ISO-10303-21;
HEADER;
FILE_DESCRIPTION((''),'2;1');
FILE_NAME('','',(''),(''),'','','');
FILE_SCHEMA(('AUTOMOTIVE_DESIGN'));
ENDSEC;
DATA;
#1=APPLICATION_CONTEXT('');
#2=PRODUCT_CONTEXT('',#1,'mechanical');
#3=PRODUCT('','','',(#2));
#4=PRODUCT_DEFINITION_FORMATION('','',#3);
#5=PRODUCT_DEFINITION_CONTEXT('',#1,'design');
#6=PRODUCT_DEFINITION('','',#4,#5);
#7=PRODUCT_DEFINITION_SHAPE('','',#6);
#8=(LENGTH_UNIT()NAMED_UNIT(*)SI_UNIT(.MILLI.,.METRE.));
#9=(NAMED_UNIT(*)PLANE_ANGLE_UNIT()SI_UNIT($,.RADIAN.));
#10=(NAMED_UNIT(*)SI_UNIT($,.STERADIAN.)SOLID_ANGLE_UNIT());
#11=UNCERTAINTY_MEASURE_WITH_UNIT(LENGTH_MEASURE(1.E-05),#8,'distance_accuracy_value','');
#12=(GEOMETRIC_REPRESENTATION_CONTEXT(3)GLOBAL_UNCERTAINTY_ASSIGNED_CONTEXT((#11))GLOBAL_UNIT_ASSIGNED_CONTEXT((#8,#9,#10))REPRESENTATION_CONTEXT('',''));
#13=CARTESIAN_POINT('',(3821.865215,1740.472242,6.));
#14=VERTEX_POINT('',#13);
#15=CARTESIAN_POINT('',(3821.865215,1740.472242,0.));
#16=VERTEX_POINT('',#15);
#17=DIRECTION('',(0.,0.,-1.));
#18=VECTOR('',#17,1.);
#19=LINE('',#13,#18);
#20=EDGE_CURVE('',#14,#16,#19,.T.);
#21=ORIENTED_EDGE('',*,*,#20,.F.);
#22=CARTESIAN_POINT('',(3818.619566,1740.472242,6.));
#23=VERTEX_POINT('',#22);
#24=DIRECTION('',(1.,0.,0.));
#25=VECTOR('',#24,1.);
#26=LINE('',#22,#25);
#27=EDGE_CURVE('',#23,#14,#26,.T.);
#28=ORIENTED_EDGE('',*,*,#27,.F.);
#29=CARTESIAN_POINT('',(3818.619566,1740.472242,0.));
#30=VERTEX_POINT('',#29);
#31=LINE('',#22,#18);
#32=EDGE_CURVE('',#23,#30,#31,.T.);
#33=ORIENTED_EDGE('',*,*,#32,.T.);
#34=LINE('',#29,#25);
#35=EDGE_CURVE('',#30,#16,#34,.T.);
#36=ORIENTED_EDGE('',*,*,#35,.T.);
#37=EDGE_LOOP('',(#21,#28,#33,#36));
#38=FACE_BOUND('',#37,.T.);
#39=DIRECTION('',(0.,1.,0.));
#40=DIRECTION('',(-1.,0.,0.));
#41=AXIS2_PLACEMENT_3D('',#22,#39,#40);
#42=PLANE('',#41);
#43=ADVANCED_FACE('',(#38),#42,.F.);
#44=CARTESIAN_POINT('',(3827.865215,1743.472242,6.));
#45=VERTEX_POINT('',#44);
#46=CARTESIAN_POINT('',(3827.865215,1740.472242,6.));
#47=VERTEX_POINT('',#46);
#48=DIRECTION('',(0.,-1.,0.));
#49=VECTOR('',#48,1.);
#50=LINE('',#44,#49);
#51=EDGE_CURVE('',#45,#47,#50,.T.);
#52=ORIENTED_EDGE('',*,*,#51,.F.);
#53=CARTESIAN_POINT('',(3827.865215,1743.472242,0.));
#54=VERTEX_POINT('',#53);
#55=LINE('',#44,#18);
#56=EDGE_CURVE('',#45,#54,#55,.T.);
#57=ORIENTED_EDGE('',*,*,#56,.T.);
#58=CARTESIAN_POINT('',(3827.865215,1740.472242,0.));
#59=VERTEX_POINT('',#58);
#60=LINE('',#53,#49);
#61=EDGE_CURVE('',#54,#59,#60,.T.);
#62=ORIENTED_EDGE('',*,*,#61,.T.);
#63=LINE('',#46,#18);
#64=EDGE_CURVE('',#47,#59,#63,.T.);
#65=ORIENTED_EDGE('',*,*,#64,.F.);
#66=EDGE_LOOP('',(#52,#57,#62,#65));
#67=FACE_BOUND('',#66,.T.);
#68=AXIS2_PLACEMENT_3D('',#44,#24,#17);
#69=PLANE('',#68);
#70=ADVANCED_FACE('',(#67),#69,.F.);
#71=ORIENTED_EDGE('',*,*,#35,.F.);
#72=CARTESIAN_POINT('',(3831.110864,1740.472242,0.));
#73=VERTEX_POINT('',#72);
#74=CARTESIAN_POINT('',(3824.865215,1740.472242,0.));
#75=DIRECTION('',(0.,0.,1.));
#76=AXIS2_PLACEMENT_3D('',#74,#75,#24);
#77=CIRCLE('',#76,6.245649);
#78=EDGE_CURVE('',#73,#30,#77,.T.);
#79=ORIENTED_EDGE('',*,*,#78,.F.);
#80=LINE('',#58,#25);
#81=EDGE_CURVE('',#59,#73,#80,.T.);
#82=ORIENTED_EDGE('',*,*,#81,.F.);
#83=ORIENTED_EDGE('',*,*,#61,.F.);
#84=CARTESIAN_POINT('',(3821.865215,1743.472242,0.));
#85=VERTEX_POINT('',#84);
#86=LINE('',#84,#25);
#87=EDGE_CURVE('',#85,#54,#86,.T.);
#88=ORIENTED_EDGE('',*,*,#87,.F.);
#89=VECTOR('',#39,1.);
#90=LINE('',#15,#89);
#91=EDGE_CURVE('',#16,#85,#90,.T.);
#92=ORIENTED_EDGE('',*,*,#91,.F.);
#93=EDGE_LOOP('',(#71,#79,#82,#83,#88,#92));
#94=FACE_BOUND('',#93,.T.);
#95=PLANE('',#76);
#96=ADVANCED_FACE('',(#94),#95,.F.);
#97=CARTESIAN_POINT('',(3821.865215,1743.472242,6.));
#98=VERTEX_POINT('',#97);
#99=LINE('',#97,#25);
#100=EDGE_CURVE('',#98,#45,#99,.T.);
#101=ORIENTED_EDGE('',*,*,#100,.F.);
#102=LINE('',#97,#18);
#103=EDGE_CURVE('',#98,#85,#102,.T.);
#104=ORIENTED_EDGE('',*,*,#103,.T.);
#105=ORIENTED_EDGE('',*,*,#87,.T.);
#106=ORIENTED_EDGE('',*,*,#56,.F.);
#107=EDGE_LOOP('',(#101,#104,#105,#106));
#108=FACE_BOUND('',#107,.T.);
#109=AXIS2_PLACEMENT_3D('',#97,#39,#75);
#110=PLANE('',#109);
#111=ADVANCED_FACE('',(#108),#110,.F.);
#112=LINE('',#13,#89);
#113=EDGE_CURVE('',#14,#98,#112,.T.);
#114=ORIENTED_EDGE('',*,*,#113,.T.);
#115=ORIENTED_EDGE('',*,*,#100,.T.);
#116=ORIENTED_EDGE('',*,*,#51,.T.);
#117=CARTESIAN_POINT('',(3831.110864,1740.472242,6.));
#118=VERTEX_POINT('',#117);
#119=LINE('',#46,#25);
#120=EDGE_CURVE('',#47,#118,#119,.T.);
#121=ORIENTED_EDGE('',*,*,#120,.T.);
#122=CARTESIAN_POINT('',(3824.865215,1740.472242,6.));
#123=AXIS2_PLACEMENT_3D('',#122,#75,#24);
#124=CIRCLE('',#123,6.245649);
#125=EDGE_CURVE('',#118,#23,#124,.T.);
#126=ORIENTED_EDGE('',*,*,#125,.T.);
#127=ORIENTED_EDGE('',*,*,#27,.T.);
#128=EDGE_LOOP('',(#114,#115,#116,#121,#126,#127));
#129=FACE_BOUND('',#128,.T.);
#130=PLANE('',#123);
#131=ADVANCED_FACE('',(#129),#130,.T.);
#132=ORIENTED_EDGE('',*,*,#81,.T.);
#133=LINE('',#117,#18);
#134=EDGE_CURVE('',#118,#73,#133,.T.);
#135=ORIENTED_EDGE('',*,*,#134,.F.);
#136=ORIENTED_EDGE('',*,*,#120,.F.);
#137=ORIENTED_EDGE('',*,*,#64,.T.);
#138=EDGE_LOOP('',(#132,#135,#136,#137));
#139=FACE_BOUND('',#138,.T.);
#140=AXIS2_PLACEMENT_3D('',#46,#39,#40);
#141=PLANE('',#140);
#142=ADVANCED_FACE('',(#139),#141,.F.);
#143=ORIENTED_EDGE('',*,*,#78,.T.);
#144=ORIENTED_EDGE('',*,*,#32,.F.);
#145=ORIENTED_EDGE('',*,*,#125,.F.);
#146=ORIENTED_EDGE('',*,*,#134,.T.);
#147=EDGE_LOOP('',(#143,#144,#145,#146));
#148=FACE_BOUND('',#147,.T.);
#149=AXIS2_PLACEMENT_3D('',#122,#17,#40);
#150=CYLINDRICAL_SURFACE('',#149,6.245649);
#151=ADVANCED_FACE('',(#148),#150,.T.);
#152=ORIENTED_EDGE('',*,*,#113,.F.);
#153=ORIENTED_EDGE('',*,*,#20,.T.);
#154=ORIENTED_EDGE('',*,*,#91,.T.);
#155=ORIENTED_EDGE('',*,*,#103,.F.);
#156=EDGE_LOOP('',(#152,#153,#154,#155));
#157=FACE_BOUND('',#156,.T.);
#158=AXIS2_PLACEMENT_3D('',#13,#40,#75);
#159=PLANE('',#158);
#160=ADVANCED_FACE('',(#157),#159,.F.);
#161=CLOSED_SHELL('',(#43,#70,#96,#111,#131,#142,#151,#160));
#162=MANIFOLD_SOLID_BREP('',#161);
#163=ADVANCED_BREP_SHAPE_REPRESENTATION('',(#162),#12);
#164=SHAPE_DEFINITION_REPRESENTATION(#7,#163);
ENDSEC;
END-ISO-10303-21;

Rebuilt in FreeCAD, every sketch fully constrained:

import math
import FreeCAD as App
import Part
import Sketcher

V = App.Vector

doc = App.newDocument("Part")
body = doc.addObject("PartDesign::Body", "Body")

# Sketch on XY plane
sketch1 = doc.addObject("Sketcher::SketchObject", "Sketch")
body.addObject(sketch1)
sketch1.AttachmentSupport = (doc.XY_Plane, [""])
sketch1.MapMode = "FlatFace"
sketch1.addGeometry([
    Part.LineSegment(V(3818.6, 1740.5, 0), V(3821.9, 1740.5, 0)),  # 0
    Part.LineSegment(V(3821.9, 1740.5, 0), V(3821.9, 1743.5, 0)),  # 1
    Part.LineSegment(V(3821.9, 1743.5, 0), V(3827.9, 1743.5, 0)),  # 2
    Part.LineSegment(V(3827.9, 1743.5, 0), V(3827.9, 1740.5, 0)),  # 3
    Part.LineSegment(V(3827.9, 1740.5, 0), V(3831.1, 1740.5, 0)),  # 4
    Part.ArcOfCircle(Part.Circle(V(3824.9, 1740.5, 0), V(0, 0, 1), 6.2), math.radians(0), math.radians(180)),  # 5
], False)
sketch1.addConstraint([
    Sketcher.Constraint("Coincident", 0, 2, 1, 1),
    Sketcher.Constraint("Coincident", 1, 2, 2, 1),
    Sketcher.Constraint("Coincident", 2, 2, 3, 1),
    Sketcher.Constraint("Coincident", 3, 2, 4, 1),
    Sketcher.Constraint("Coincident", 4, 2, 5, 1),
    Sketcher.Constraint("Coincident", 5, 2, 0, 1),
    Sketcher.Constraint("Horizontal", 0),
    Sketcher.Constraint("Vertical", 1),
    Sketcher.Constraint("Horizontal", 2),
    Sketcher.Constraint("Vertical", 3),
    Sketcher.Constraint("Horizontal", 4),
    Sketcher.Constraint("Horizontal", 5, 3, 0, 2),
    Sketcher.Constraint("Horizontal", 0, 2, 3, 2),
    Sketcher.Constraint("Equal", 0, 4),
    Sketcher.Constraint("DistanceX", 2, 1, 2, 2, 6.0),
    Sketcher.Constraint("DistanceY", 1, 1, 1, 2, 3.0),
    Sketcher.Constraint("Radius", 5, 6.245649),
    Sketcher.Constraint("DistanceX", -1, 1, 5, 3, 3824.865215),
    Sketcher.Constraint("DistanceY", -1, 1, 5, 3, 1740.472242),
])
pad1 = doc.addObject("PartDesign::Pad", "Pad")
body.addObject(pad1)
pad1.Profile = sketch1
pad1.Length = 6

doc.recompute()
